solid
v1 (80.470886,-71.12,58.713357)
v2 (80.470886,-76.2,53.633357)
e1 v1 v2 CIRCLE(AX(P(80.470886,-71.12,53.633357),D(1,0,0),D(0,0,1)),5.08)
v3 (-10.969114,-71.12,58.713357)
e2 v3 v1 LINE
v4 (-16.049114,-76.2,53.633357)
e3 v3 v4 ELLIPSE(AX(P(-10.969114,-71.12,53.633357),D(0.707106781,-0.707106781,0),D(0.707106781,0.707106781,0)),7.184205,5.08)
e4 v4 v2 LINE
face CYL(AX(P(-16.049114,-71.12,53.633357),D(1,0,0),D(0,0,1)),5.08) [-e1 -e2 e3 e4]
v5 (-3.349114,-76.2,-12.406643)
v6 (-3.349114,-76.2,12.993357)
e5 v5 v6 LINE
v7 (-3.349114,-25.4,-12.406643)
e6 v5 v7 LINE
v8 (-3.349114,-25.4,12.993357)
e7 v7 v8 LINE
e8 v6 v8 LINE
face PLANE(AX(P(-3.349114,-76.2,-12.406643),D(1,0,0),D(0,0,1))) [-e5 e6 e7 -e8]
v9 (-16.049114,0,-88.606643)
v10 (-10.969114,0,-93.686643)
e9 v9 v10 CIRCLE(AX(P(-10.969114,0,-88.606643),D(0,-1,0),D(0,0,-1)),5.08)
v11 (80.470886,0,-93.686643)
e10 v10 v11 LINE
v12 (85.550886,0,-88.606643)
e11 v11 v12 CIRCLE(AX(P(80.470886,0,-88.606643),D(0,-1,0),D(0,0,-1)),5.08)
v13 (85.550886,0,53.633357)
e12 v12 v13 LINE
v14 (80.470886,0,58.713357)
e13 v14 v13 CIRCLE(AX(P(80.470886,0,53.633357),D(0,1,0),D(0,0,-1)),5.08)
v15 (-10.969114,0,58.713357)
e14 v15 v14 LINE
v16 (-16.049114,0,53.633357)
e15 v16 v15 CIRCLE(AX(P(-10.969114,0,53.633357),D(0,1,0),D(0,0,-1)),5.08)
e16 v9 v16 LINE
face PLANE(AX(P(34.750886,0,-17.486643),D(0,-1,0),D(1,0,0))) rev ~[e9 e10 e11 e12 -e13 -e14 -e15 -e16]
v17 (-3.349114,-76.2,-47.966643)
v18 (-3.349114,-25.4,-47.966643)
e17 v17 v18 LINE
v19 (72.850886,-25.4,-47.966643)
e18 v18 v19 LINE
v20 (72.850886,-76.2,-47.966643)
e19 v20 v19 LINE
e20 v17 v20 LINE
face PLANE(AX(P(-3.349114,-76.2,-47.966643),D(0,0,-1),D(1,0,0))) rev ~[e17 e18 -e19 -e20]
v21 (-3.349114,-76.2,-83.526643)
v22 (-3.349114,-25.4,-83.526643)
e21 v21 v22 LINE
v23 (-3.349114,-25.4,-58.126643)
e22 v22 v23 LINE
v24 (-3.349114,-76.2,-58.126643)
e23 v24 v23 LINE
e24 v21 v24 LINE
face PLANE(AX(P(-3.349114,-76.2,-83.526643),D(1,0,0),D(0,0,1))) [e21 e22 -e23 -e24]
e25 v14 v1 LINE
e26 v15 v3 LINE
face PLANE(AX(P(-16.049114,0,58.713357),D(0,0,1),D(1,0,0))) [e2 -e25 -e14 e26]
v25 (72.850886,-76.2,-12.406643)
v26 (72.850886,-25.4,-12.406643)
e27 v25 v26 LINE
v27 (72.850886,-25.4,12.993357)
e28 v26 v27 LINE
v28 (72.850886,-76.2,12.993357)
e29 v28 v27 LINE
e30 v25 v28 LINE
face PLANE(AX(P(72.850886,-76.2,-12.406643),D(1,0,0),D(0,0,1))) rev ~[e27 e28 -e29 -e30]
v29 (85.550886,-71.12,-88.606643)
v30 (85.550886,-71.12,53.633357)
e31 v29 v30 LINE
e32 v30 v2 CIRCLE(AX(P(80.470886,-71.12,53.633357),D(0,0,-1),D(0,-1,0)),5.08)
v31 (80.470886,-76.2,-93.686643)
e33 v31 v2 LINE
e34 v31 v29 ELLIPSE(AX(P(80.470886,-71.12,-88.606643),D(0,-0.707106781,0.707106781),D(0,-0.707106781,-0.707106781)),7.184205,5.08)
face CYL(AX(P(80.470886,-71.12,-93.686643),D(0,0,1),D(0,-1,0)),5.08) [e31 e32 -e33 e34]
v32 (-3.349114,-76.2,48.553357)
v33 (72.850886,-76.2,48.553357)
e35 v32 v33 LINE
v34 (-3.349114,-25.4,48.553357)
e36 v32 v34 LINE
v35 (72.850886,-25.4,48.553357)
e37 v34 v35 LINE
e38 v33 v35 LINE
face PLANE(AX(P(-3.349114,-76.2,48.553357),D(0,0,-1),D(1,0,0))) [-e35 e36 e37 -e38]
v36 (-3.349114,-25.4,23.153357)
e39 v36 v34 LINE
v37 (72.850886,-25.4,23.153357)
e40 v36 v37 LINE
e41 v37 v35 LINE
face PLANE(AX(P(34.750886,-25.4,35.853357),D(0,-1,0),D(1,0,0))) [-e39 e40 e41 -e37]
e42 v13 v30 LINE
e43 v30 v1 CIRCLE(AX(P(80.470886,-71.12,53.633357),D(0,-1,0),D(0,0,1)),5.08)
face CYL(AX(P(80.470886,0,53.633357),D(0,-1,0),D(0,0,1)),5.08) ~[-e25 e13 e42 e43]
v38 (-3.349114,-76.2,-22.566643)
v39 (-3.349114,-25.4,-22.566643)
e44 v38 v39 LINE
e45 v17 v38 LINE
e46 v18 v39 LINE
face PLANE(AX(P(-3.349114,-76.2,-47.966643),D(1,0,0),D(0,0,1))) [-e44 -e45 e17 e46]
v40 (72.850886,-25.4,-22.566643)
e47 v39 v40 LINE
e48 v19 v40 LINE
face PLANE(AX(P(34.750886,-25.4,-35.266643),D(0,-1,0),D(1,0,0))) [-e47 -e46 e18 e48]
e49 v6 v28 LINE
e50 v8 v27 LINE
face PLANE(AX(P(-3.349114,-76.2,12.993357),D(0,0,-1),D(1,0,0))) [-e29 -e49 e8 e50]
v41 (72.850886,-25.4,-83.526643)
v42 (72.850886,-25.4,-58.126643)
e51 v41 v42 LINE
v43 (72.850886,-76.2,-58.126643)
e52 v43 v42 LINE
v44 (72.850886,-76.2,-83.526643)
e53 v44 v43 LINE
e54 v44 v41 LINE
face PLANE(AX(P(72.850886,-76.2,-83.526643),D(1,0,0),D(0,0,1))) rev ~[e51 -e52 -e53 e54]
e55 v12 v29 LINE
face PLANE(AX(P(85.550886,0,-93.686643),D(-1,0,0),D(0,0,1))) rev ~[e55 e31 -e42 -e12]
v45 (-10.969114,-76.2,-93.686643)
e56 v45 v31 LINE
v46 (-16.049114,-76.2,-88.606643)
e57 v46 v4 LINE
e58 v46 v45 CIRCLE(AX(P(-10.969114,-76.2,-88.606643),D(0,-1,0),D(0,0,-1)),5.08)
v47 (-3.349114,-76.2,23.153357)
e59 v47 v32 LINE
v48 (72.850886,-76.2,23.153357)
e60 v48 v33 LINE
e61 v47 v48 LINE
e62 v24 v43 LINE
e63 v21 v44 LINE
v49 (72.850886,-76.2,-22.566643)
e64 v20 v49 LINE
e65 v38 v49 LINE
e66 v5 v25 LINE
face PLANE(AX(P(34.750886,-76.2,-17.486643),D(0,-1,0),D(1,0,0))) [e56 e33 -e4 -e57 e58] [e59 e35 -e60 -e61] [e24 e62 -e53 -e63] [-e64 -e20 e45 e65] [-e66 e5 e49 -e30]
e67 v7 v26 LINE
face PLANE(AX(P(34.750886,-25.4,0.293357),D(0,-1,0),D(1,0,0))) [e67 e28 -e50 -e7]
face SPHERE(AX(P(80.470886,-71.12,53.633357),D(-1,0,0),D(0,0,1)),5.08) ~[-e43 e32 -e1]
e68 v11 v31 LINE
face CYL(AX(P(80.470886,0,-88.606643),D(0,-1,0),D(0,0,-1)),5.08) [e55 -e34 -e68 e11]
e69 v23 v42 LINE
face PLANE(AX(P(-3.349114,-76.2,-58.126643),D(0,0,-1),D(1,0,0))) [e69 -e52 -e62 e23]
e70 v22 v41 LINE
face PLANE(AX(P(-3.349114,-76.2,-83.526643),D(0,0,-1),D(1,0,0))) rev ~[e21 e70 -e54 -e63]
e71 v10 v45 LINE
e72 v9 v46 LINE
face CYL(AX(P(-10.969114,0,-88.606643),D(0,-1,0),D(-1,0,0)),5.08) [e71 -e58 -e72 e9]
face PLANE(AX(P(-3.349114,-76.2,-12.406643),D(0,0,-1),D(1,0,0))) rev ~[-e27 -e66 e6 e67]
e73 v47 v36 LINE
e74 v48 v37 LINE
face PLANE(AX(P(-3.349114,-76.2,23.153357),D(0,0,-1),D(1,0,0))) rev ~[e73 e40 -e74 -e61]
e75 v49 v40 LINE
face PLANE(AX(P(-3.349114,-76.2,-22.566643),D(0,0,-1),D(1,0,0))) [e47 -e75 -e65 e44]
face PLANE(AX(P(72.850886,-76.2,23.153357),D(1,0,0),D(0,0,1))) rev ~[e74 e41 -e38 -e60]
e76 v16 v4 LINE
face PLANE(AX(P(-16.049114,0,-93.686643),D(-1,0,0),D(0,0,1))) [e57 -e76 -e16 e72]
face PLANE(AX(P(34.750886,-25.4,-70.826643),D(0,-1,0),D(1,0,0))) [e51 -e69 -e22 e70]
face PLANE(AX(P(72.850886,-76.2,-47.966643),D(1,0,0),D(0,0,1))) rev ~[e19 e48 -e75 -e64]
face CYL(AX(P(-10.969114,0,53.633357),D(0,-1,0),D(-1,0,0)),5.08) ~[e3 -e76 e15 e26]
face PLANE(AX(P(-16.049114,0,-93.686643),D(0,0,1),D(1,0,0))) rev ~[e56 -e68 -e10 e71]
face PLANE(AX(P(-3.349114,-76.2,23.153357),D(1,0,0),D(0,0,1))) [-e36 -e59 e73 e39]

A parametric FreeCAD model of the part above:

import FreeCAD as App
import Part
import Sketcher
from FreeCAD import Vector
Q = App.Units.Quantity


def edges_at(feature, points):
    """Names of the edges that pass closest to the given points."""
    edges = feature.Shape.Edges
    near = lambda p: min(range(len(edges)), key=lambda i: edges[i].distToShape(Part.Vertex(*p))[0])
    return sorted({f"Edge{near(p) + 1}" for p in points})

doc = App.newDocument("Part")
body = doc.addObject("PartDesign::Body", "Body")

# Sketch on XZ plane
sketch1 = body.newObject("Sketcher::SketchObject", "Sketch")
sketch1.AttachmentSupport = (doc.getObject("XZ_Plane"), [""])
sketch1.MapMode = "FlatFace"
sketch1.addGeometry(Part.LineSegment(Vector(-16, 59, 0), Vector(-16, -94, 0)), False)
sketch1.addGeometry(Part.LineSegment(Vector(-16, -94, 0), Vector(86, -94, 0)), False)
sketch1.addGeometry(Part.LineSegment(Vector(86, -94, 0), Vector(86, 59, 0)), False)
sketch1.addGeometry(Part.LineSegment(Vector(86, 59, 0), Vector(-16, 59, 0)), False)
sketch1.addConstraint(Sketcher.Constraint("Coincident", 0, 2, 1, 1))
sketch1.addConstraint(Sketcher.Constraint("Coincident", 1, 2, 2, 1))
sketch1.addConstraint(Sketcher.Constraint("Coincident", 2, 2, 3, 1))
sketch1.addConstraint(Sketcher.Constraint("Coincident", 3, 2, 0, 1))
sketch1.addConstraint(Sketcher.Constraint("Vertical", 0))
sketch1.addConstraint(Sketcher.Constraint("Horizontal", 1))
sketch1.addConstraint(Sketcher.Constraint("Vertical", 2))
sketch1.addConstraint(Sketcher.Constraint("Horizontal", 3))
sketch1.addConstraint(Sketcher.Constraint("DistanceX", 1, 1, 1, 2, Q("4 in")))
sketch1.addConstraint(Sketcher.Constraint("DistanceY", 0, 2, 0, 1, Q("6 in")))
sketch1.addConstraint(Sketcher.Constraint("DistanceX", 0, 2, -1, 1, 16.049114))
sketch1.addConstraint(Sketcher.Constraint("DistanceY", 0, 2, -1, 1, 93.686643))
pad1 = body.newObject("PartDesign::Pad", "Pad")
pad1.Profile = sketch1
pad1.Length = Q("3 in")

# Sketch on XZ plane
sketch2 = body.newObject("Sketcher::SketchObject", "Sketch001")
sketch2.AttachmentSupport = (doc.getObject("XZ_Plane"), [""])
sketch2.MapMode = "FlatFace"
sketch2.AttachmentOffset = App.Placement(Vector(0, 0, 3 * 25.4), App.Rotation())
sketch2.addGeometry(Part.LineSegment(Vector(-3, 49, 0), Vector(-3, 23, 0)), False)
sketch2.addGeometry(Part.LineSegment(Vector(-3, 23, 0), Vector(73, 23, 0)), False)
sketch2.addGeometry(Part.LineSegment(Vector(73, 23, 0), Vector(73, 49, 0)), False)
sketch2.addGeometry(Part.LineSegment(Vector(73, 49, 0), Vector(-3, 49, 0)), False)
sketch2.addGeometry(Part.LineSegment(Vector(-3, 13, 0), Vector(-3, -12, 0)), False)
sketch2.addGeometry(Part.LineSegment(Vector(-3, -12, 0), Vector(73, -12, 0)), False)
sketch2.addGeometry(Part.LineSegment(Vector(73, -12, 0), Vector(73, 13, 0)), False)
sketch2.addGeometry(Part.LineSegment(Vector(73, 13, 0), Vector(-3, 13, 0)), False)
sketch2.addGeometry(Part.LineSegment(Vector(-3, -23, 0), Vector(-3, -48, 0)), False)
sketch2.addGeometry(Part.LineSegment(Vector(-3, -48, 0), Vector(73, -48, 0)), False)
sketch2.addGeometry(Part.LineSegment(Vector(73, -48, 0), Vector(73, -23, 0)), False)
sketch2.addGeometry(Part.LineSegment(Vector(73, -23, 0), Vector(-3, -23, 0)), False)
sketch2.addGeometry(Part.LineSegment(Vector(-3, -58, 0), Vector(-3, -84, 0)), False)
sketch2.addGeometry(Part.LineSegment(Vector(-3, -84, 0), Vector(73, -84, 0)), False)
sketch2.addGeometry(Part.LineSegment(Vector(73, -84, 0), Vector(73, -58, 0)), False)
sketch2.addGeometry(Part.LineSegment(Vector(73, -58, 0), Vector(-3, -58, 0)), False)
sketch2.addConstraint(Sketcher.Constraint("Coincident", 0, 2, 1, 1))
sketch2.addConstraint(Sketcher.Constraint("Coincident", 1, 2, 2, 1))
sketch2.addConstraint(Sketcher.Constraint("Coincident", 2, 2, 3, 1))
sketch2.addConstraint(Sketcher.Constraint("Coincident", 3, 2, 0, 1))
sketch2.addConstraint(Sketcher.Constraint("Coincident", 4, 2, 5, 1))
sketch2.addConstraint(Sketcher.Constraint("Coincident", 5, 2, 6, 1))
sketch2.addConstraint(Sketcher.Constraint("Coincident", 6, 2, 7, 1))
sketch2.addConstraint(Sketcher.Constraint("Coincident", 7, 2, 4, 1))
sketch2.addConstraint(Sketcher.Constraint("Coincident", 8, 2, 9, 1))
sketch2.addConstraint(Sketcher.Constraint("Coincident", 9, 2, 10, 1))
sketch2.addConstraint(Sketcher.Constraint("Coincident", 10, 2, 11, 1))
sketch2.addConstraint(Sketcher.Constraint("Coincident", 11, 2, 8, 1))
sketch2.addConstraint(Sketcher.Constraint("Coincident", 12, 2, 13, 1))
sketch2.addConstraint(Sketcher.Constraint("Coincident", 13, 2, 14, 1))
sketch2.addConstraint(Sketcher.Constraint("Coincident", 14, 2, 15, 1))
sketch2.addConstraint(Sketcher.Constraint("Coincident", 15, 2, 12, 1))
sketch2.addConstraint(Sketcher.Constraint("Vertical", 0))
sketch2.addConstraint(Sketcher.Constraint("Horizontal", 1))
sketch2.addConstraint(Sketcher.Constraint("Vertical", 2))
sketch2.addConstraint(Sketcher.Constraint("Horizontal", 3))
sketch2.addConstraint(Sketcher.Constraint("Vertical", 4))
sketch2.addConstraint(Sketcher.Constraint("Horizontal", 5))
sketch2.addConstraint(Sketcher.Constraint("Vertical", 6))
sketch2.addConstraint(Sketcher.Constraint("Horizontal", 7))
sketch2.addConstraint(Sketcher.Constraint("Vertical", 8))
sketch2.addConstraint(Sketcher.Constraint("Horizontal", 9))
sketch2.addConstraint(Sketcher.Constraint("Vertical", 10))
sketch2.addConstraint(Sketcher.Constraint("Horizontal", 11))
sketch2.addConstraint(Sketcher.Constraint("Vertical", 12))
sketch2.addConstraint(Sketcher.Constraint("Horizontal", 13))
sketch2.addConstraint(Sketcher.Constraint("Vertical", 14))
sketch2.addConstraint(Sketcher.Constraint("Horizontal", 15))
sketch2.addConstraint(Sketcher.Constraint("Vertical", 3, 2, 4, 2))
sketch2.addConstraint(Sketcher.Constraint("Vertical", 2, 2, 5, 2))
sketch2.addConstraint(Sketcher.Constraint("Vertical", 7, 2, 8, 2))
sketch2.addConstraint(Sketcher.Constraint("Vertical", 6, 2, 9, 2))
sketch2.addConstraint(Sketcher.Constraint("Vertical", 11, 2, 12, 2))
sketch2.addConstraint(Sketcher.Constraint("Vertical", 10, 2, 13, 2))
sketch2.addConstraint(Sketcher.Constraint("Equal", 2, 4))
sketch2.addConstraint(Sketcher.Constraint("Equal", 6, 8))
sketch2.addConstraint(Sketcher.Constraint("Equal", 10, 12))
sketch2.addConstraint(Sketcher.Constraint("DistanceX", 1, 1, 1, 2, Q("3 in")))
sketch2.addConstraint(Sketcher.Constraint("DistanceY", 0, 2, 0, 1, Q("1 in")))
sketch2.addConstraint(Sketcher.Constraint("DistanceY", 4, 2, 0, 2, Q("1.4 in")))
sketch2.addConstraint(Sketcher.Constraint("DistanceY", 8, 2, 4, 2, Q("1.4 in")))
sketch2.addConstraint(Sketcher.Constraint("DistanceY", 12, 2, 8, 2, Q("1.4 in")))
sketch2.addConstraint(Sketcher.Constraint("DistanceX", 0, 2, -1, 1, 3.349114))
sketch2.addConstraint(Sketcher.Constraint("DistanceY", -1, 1, 0, 2, 23.153357))
pocket1 = body.newObject("PartDesign::Pocket", "Pocket")
pocket1.Profile = sketch2
pocket1.Length = Q("2 in")
doc.recompute()

fillet = body.newObject("PartDesign::Fillet", "Fillet")
fillet.Base = (pocket1, edges_at(pocket1, [
    (34.751, -76.2, 58.713),
    (85.551, -38.1, 58.713),
    (85.551, -38.1, -93.687),
    (-16.049, -38.1, -93.687),
    (-16.049, -38.1, 58.713),
    (85.551, -76.2, -17.487),
]))
fillet.Radius = Q("0.2 in")

doc.recompute()
